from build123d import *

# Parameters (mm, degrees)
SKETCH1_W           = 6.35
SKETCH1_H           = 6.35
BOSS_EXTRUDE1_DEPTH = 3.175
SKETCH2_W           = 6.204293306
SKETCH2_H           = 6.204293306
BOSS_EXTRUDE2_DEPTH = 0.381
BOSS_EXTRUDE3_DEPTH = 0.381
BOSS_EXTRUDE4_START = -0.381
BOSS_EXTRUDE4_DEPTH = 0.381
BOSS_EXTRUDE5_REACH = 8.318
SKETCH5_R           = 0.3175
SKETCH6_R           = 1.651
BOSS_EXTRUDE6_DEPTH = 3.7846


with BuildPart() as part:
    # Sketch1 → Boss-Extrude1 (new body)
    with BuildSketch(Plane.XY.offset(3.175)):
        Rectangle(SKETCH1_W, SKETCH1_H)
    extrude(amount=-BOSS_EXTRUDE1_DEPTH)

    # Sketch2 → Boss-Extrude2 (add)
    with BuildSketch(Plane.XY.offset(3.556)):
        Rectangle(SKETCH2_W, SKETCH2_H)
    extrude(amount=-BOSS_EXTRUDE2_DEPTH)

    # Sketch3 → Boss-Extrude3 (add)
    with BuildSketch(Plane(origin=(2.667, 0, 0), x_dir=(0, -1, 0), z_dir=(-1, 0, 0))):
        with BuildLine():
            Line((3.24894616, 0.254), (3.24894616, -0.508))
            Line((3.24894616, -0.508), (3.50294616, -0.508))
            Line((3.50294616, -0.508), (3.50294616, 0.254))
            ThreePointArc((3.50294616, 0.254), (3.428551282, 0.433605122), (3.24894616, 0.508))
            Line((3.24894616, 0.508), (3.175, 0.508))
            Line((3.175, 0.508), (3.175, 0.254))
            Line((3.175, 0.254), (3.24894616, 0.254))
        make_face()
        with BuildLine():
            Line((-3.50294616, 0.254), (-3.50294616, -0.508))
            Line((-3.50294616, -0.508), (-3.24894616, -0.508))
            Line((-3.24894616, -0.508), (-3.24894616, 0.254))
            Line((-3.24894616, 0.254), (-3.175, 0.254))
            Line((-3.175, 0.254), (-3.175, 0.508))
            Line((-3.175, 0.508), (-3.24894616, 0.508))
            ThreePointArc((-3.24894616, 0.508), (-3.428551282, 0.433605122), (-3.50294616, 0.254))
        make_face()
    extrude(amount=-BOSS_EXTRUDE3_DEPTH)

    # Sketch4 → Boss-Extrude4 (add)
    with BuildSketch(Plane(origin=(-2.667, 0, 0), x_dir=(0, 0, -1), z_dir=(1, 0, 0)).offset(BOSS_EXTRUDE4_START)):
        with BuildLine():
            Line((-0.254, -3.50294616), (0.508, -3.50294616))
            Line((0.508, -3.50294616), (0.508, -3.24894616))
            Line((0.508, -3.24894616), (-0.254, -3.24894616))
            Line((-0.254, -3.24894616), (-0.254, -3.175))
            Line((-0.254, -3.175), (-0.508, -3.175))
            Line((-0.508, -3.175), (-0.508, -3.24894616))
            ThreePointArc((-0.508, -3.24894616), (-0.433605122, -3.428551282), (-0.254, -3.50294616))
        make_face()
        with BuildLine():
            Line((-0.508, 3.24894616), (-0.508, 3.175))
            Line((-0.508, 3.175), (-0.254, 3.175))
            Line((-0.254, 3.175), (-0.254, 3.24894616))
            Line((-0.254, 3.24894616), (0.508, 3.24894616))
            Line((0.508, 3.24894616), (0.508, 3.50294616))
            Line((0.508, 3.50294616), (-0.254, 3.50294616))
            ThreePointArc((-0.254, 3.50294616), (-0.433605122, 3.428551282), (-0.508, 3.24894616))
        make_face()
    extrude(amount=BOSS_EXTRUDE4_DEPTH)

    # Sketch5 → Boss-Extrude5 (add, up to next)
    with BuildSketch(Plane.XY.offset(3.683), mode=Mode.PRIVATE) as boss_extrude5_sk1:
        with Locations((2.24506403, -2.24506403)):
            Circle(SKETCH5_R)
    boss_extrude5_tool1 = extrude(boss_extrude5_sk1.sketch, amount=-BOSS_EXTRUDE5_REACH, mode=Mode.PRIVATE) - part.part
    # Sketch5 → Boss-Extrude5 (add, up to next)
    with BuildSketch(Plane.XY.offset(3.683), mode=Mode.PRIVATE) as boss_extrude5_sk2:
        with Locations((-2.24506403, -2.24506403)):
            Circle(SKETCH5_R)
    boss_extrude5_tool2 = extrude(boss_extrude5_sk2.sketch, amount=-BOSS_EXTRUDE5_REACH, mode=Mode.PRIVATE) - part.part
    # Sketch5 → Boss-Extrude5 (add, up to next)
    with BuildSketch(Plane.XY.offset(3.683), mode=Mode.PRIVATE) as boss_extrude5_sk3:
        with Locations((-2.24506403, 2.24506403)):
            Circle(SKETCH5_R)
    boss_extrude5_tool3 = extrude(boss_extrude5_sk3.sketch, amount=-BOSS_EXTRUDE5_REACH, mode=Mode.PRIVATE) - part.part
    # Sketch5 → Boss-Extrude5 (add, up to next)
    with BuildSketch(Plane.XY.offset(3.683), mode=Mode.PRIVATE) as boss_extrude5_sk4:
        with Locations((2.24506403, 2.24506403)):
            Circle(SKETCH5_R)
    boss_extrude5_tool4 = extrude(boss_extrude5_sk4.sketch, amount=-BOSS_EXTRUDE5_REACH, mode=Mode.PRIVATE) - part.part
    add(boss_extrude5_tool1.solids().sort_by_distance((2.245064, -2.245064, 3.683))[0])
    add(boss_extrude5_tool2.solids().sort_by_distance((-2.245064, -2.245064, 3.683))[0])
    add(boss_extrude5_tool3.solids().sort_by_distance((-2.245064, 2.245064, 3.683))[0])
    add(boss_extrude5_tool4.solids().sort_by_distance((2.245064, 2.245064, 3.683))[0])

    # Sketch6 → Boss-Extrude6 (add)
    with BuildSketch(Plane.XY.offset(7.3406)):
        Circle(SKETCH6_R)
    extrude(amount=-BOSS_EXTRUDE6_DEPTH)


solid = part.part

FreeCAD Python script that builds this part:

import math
import FreeCAD as App
import Part
import Sketcher
Q = App.Units.Quantity

doc = App.newDocument("Part")
body = doc.addObject("PartDesign::Body", "Body")

sketch1 = body.newObject("Sketcher::SketchObject", "Sketch")
sketch1.AttachmentSupport = (doc.getObject("XY_Plane"), [""])
sketch1.MapMode = "FlatFace"
sketch1.AttachmentOffset = App.Placement(App.Vector(0, 0, 0.125 * 25.4), App.Rotation())
sketch1.addGeometry([
    Part.LineSegment(App.Vector(-3, 3, 0), App.Vector(-3, -3, 0)),
    Part.LineSegment(App.Vector(-3, -3, 0), App.Vector(3, -3, 0)),
    Part.LineSegment(App.Vector(3, -3, 0), App.Vector(3, 3, 0)),
    Part.LineSegment(App.Vector(3, 3, 0), App.Vector(-3, 3, 0)),
], False)
sketch1.addConstraint([
    Sketcher.Constraint("Coincident", 0, 2, 1, 1),
    Sketcher.Constraint("Coincident", 1, 2, 2, 1),
    Sketcher.Constraint("Coincident", 2, 2, 3, 1),
    Sketcher.Constraint("Coincident", 3, 2, 0, 1),
    Sketcher.Constraint("Vertical", 0),
    Sketcher.Constraint("Horizontal", 1),
    Sketcher.Constraint("Vertical", 2),
    Sketcher.Constraint("Horizontal", 3),
    Sketcher.Constraint("Symmetric", 0, 2, 2, 2, -1, 1),
    Sketcher.Constraint("Equal", 3, 0),
    Sketcher.Constraint("DistanceX", 1, 1, 1, 2, Q("0.25 in")),
])
pad1 = body.newObject("PartDesign::Pad", "Pad")
pad1.Profile = sketch1
pad1.Length = Q("0.125 in")
pad1.Reversed = True

sketch2 = body.newObject("Sketcher::SketchObject", "Sketch001")
sketch2.AttachmentSupport = (doc.getObject("XY_Plane"), [""])
sketch2.MapMode = "FlatFace"
sketch2.AttachmentOffset = App.Placement(App.Vector(0, 0, 0.14 * 25.4), App.Rotation())
sketch2.addGeometry([
    Part.LineSegment(App.Vector(-3, 3, 0), App.Vector(-3, -3, 0)),
    Part.LineSegment(App.Vector(-3, -3, 0), App.Vector(3, -3, 0)),
    Part.LineSegment(App.Vector(3, -3, 0), App.Vector(3, 3, 0)),
    Part.LineSegment(App.Vector(3, 3, 0), App.Vector(-3, 3, 0)),
], False)
sketch2.addConstraint([
    Sketcher.Constraint("Coincident", 0, 2, 1, 1),
    Sketcher.Constraint("Coincident", 1, 2, 2, 1),
    Sketcher.Constraint("Coincident", 2, 2, 3, 1),
    Sketcher.Constraint("Coincident", 3, 2, 0, 1),
    Sketcher.Constraint("Vertical", 0),
    Sketcher.Constraint("Horizontal", 1),
    Sketcher.Constraint("Vertical", 2),
    Sketcher.Constraint("Horizontal", 3),
    Sketcher.Constraint("Symmetric", 0, 2, 2, 2, -1, 1),
    Sketcher.Constraint("Equal", 3, 0),
    Sketcher.Constraint("DistanceX", 1, 1, 1, 2, Q("6.204293 mm")),
])
pad2 = body.newObject("PartDesign::Pad", "Pad001")
pad2.Profile = sketch2
pad2.Length = Q("0.015 in")
pad2.Reversed = True

sketch3 = body.newObject("Sketcher::SketchObject", "Sketch002")
sketch3.AttachmentSupport = (doc.getObject("YZ_Plane"), [""])
sketch3.MapMode = "FlatFace"
sketch3.AttachmentOffset = App.Placement(App.Vector(0, 0, 0.105 * 25.4), App.Rotation())
sketch3.addGeometry([
    Part.LineSegment(App.Vector(-3.25, 0.25, 0), App.Vector(-3.25, -0.51, 0)),
    Part.LineSegment(App.Vector(-3.25, -0.51, 0), App.Vector(-3.5, -0.51, 0)),
    Part.LineSegment(App.Vector(-3.5, -0.51, 0), App.Vector(-3.5, 0.25, 0)),
    Part.ArcOfCircle(Part.Circle(App.Vector(-3.25, 0.25, 0), App.Vector(0, 0, 1), 0.25), math.radians(90), math.radians(180)),
    Part.LineSegment(App.Vector(-3.25, 0.51, 0), App.Vector(-3.17, 0.51, 0)),
    Part.LineSegment(App.Vector(-3.17, 0.51, 0), App.Vector(-3.17, 0.25, 0)),
    Part.LineSegment(App.Vector(-3.17, 0.25, 0), App.Vector(-3.25, 0.25, 0)),
    Part.LineSegment(App.Vector(3.5, 0.25, 0), App.Vector(3.5, -0.51, 0)),
    Part.LineSegment(App.Vector(3.5, -0.51, 0), App.Vector(3.25, -0.51, 0)),
    Part.LineSegment(App.Vector(3.25, -0.51, 0), App.Vector(3.25, 0.25, 0)),
    Part.LineSegment(App.Vector(3.25, 0.25, 0), App.Vector(3.17, 0.25, 0)),
    Part.LineSegment(App.Vector(3.17, 0.25, 0), App.Vector(3.17, 0.51, 0)),
    Part.LineSegment(App.Vector(3.17, 0.51, 0), App.Vector(3.25, 0.51, 0)),
    Part.ArcOfCircle(Part.Circle(App.Vector(3.25, 0.25, 0), App.Vector(0, 0, 1), 0.25), math.radians(0), math.radians(90)),
], False)
sketch3.addConstraint([
    Sketcher.Constraint("Coincident", 0, 2, 1, 1),
    Sketcher.Constraint("Coincident", 1, 2, 2, 1),
    Sketcher.Constraint("Tangent", 2, 2, 3, 2),
    Sketcher.Constraint("Tangent", 3, 1, 4, 1),
    Sketcher.Constraint("Coincident", 4, 2, 5, 1),
    Sketcher.Constraint("Coincident", 5, 2, 6, 1),
    Sketcher.Constraint("Coincident", 6, 2, 0, 1),
    Sketcher.Constraint("Coincident", 7, 2, 8, 1),
    Sketcher.Constraint("Coincident", 8, 2, 9, 1),
    Sketcher.Constraint("Coincident", 9, 2, 10, 1),
    Sketcher.Constraint("Coincident", 10, 2, 11, 1),
    Sketcher.Constraint("Coincident", 11, 2, 12, 1),
    Sketcher.Constraint("Tangent", 12, 2, 13, 2),
    Sketcher.Constraint("Tangent", 13, 1, 7, 1),
    Sketcher.Constraint("Vertical", 0),
    Sketcher.Constraint("Horizontal", 1),
    Sketcher.Constraint("Vertical", 2),
    Sketcher.Constraint("Horizontal", 4),
    Sketcher.Constraint("Vertical", 5),
    Sketcher.Constraint("Horizontal", 6),
    Sketcher.Constraint("Vertical", 7),
    Sketcher.Constraint("Horizontal", 8),
    Sketcher.Constraint("Vertical", 9),
    Sketcher.Constraint("Horizontal", 10),
    Sketcher.Constraint("Vertical", 11),
    Sketcher.Constraint("Horizontal", 12),
    Sketcher.Constraint("Coincident", 6, 2, 3, 3),
    Sketcher.Constraint("Coincident", 9, 2, 13, 3),
    Sketcher.Constraint("Equal", 3, 13),
    Sketcher.Constraint("Symmetric", 3, 1, 8, 2, -1, 1),
    Sketcher.Constraint("Symmetric", 5, 2, 10, 2, -2),
    Sketcher.Constraint("Horizontal", 1, 2, 7, 2),
    Sketcher.Constraint("Radius", 3, Q("0.01 in")),
    Sketcher.Constraint("DistanceY", 0, 2, 0, 1, Q("0.03 in")),
    Sketcher.Constraint("DistanceX", 5, 2, 10, 2, Q("0.25 in")),
    Sketcher.Constraint("DistanceX", 4, 1, 4, 2, Q("0.073946 mm")),
])
pad3 = body.newObject("PartDesign::Pad", "Pad002")
pad3.Profile = sketch3
pad3.Length = Q("0.015 in")

sketch4 = body.newObject("Sketcher::SketchObject", "Sketch003")
sketch4.AttachmentSupport = (doc.getObject("YZ_Plane"), [""])
sketch4.MapMode = "FlatFace"
sketch4.AttachmentOffset = App.Placement(App.Vector(0, 0, -0.12 * 25.4), App.Rotation())
sketch4.addGeometry([
    Part.LineSegment(App.Vector(-3.5, 0.25, 0), App.Vector(-3.5, -0.51, 0)),
    Part.LineSegment(App.Vector(-3.5, -0.51, 0), App.Vector(-3.25, -0.51, 0)),
    Part.LineSegment(App.Vector(-3.25, -0.51, 0), App.Vector(-3.25, 0.25, 0)),
    Part.LineSegment(App.Vector(-3.25, 0.25, 0), App.Vector(-3.17, 0.25, 0)),
    Part.LineSegment(App.Vector(-3.17, 0.25, 0), App.Vector(-3.17, 0.51, 0)),
    Part.LineSegment(App.Vector(-3.17, 0.51, 0), App.Vector(-3.25, 0.51, 0)),
    Part.ArcOfCircle(Part.Circle(App.Vector(-3.25, 0.25, 0), App.Vector(0, 0, 1), 0.25), math.radians(90), math.radians(180)),
    Part.LineSegment(App.Vector(3.25, 0.51, 0), App.Vector(3.17, 0.51, 0)),
    Part.LineSegment(App.Vector(3.17, 0.51, 0), App.Vector(3.17, 0.25, 0)),
    Part.LineSegment(App.Vector(3.17, 0.25, 0), App.Vector(3.25, 0.25, 0)),
    Part.LineSegment(App.Vector(3.25, 0.25, 0), App.Vector(3.25, -0.51, 0)),
    Part.LineSegment(App.Vector(3.25, -0.51, 0), App.Vector(3.5, -0.51, 0)),
    Part.LineSegment(App.Vector(3.5, -0.51, 0), App.Vector(3.5, 0.25, 0)),
    Part.ArcOfCircle(Part.Circle(App.Vector(3.25, 0.25, 0), App.Vector(0, 0, 1), 0.25), math.radians(0), math.radians(90)),
], False)
sketch4.addConstraint([
    Sketcher.Constraint("Coincident", 0, 2, 1, 1),
    Sketcher.Constraint("Coincident", 1, 2, 2, 1),
    Sketcher.Constraint("Coincident", 2, 2, 3, 1),
    Sketcher.Constraint("Coincident", 3, 2, 4, 1),
    Sketcher.Constraint("Coincident", 4, 2, 5, 1),
    Sketcher.Constraint("Tangent", 5, 2, 6, 1),
    Sketcher.Constraint("Tangent", 6, 2, 0, 1),
    Sketcher.Constraint("Coincident", 7, 2, 8, 1),
    Sketcher.Constraint("Coincident", 8, 2, 9, 1),
    Sketcher.Constraint("Coincident", 9, 2, 10, 1),
    Sketcher.Constraint("Coincident", 10, 2, 11, 1),
    Sketcher.Constraint("Coincident", 11, 2, 12, 1),
    Sketcher.Constraint("Tangent", 12, 2, 13, 1),
    Sketcher.Constraint("Tangent", 13, 2, 7, 1),
    Sketcher.Constraint("Vertical", 0),
    Sketcher.Constraint("Horizontal", 1),
    Sketcher.Constraint("Vertical", 2),
    Sketcher.Constraint("Horizontal", 3),
    Sketcher.Constraint("Vertical", 4),
    Sketcher.Constraint("Horizontal", 5),
    Sketcher.Constraint("Horizontal", 7),
    Sketcher.Constraint("Vertical", 8),
    Sketcher.Constraint("Horizontal", 9),
    Sketcher.Constraint("Vertical", 10),
    Sketcher.Constraint("Horizontal", 11),
    Sketcher.Constraint("Vertical", 12),
    Sketcher.Constraint("Coincident", 2, 2, 6, 3),
    Sketcher.Constraint("Coincident", 9, 2, 13, 3),
    Sketcher.Constraint("Equal", 6, 13),
    Sketcher.Constraint("Symmetric", 5, 2, 10, 2, -1, 1),
    Sketcher.Constraint("Symmetric", 4, 2, 7, 2, -2),
    Sketcher.Constraint("Horizontal", 1, 2, 10, 2),
    Sketcher.Constraint("Radius", 6, Q("0.01 in")),
    Sketcher.Constraint("DistanceY", 0, 2, 0, 1, Q("0.03 in")),
    Sketcher.Constraint("DistanceX", 4, 2, 7, 2, Q("0.25 in")),
    Sketcher.Constraint("DistanceX", 3, 1, 3, 2, Q("0.073946 mm")),
])
pad4 = body.newObject("PartDesign::Pad", "Pad003")
pad4.Profile = sketch4
pad4.Length = Q("0.015 in")

sketch5 = body.newObject("Sketcher::SketchObject", "Sketch004")
sketch5.AttachmentSupport = (doc.getObject("XY_Plane"), [""])
sketch5.MapMode = "FlatFace"
sketch5.AttachmentOffset = App.Placement(App.Vector(0, 0, 0.145 * 25.4), App.Rotation())
sketch5.addGeometry(Part.Circle(App.Vector(2.25, -2.25, 0), App.Vector(0, 0, 1), 0.32), False)
sketch5.addConstraint([
    Sketcher.Constraint("Diameter", 0, Q("0.025 in")),
    Sketcher.Constraint("DistanceX", -1, 1, 0, 3, Q("2.245064 mm")),
    Sketcher.Constraint("DistanceY", 0, 3, -1, 1, Q("2.245064 mm")),
])
pad5 = body.newObject("PartDesign::Pad", "Pad004")
pad5.Profile = sketch5
pad5.Type = "UpToFirst"
pad5.Reversed = True

sketch6 = body.newObject("Sketcher::SketchObject", "Sketch005")
sketch6.AttachmentSupport = (doc.getObject("XY_Plane"), [""])
sketch6.MapMode = "FlatFace"
sketch6.AttachmentOffset = App.Placement(App.Vector(0, 0, 0.145 * 25.4), App.Rotation())
sketch6.addGeometry(Part.Circle(App.Vector(-2.25, -2.25, 0), App.Vector(0, 0, 1), 0.32), False)
sketch6.addConstraint([
    Sketcher.Constraint("Diameter", 0, Q("0.025 in")),
    Sketcher.Constraint("DistanceX", 0, 3, -1, 1, Q("2.245064 mm")),
    Sketcher.Constraint("DistanceY", 0, 3, -1, 1, Q("2.245064 mm")),
])
pad6 = body.newObject("PartDesign::Pad", "Pad005")
pad6.Profile = sketch6
pad6.Type = "UpToFirst"
pad6.Reversed = True

sketch7 = body.newObject("Sketcher::SketchObject", "Sketch006")
sketch7.AttachmentSupport = (doc.getObject("XY_Plane"), [""])
sketch7.MapMode = "FlatFace"
sketch7.AttachmentOffset = App.Placement(App.Vector(0, 0, 0.145 * 25.4), App.Rotation())
sketch7.addGeometry(Part.Circle(App.Vector(-2.25, 2.25, 0), App.Vector(0, 0, 1), 0.32), False)
sketch7.addConstraint([
    Sketcher.Constraint("Diameter", 0, Q("0.025 in")),
    Sketcher.Constraint("DistanceX", 0, 3, -1, 1, Q("2.245064 mm")),
    Sketcher.Constraint("DistanceY", -1, 1, 0, 3, Q("2.245064 mm")),
])
pad7 = body.newObject("PartDesign::Pad", "Pad006")
pad7.Profile = sketch7
pad7.Type = "UpToFirst"
pad7.Reversed = True

sketch8 = body.newObject("Sketcher::SketchObject", "Sketch007")
sketch8.AttachmentSupport = (doc.getObject("XY_Plane"), [""])
sketch8.MapMode = "FlatFace"
sketch8.AttachmentOffset = App.Placement(App.Vector(0, 0, 0.145 * 25.4), App.Rotation())
sketch8.addGeometry(Part.Circle(App.Vector(2.25, 2.25, 0), App.Vector(0, 0, 1), 0.32), False)
sketch8.addConstraint([
    Sketcher.Constraint("Diameter", 0, Q("0.025 in")),
    Sketcher.Constraint("DistanceX", -1, 1, 0, 3, Q("2.245064 mm")),
    Sketcher.Constraint("DistanceY", -1, 1, 0, 3, Q("2.245064 mm")),
])
pad8 = body.newObject("PartDesign::Pad", "Pad007")
pad8.Profile = sketch8
pad8.Type = "UpToFirst"
pad8.Reversed = True

sketch9 = body.newObject("Sketcher::SketchObject", "Sketch008")
sketch9.AttachmentSupport = (doc.getObject("XY_Plane"), [""])
sketch9.MapMode = "FlatFace"
sketch9.AttachmentOffset = App.Placement(App.Vector(0, 0, 0.289 * 25.4), App.Rotation())
sketch9.addGeometry(Part.Circle(App.Vector(0, 0, 0), App.Vector(0, 0, 1), 1.7), False)
sketch9.addConstraint([
    Sketcher.Constraint("Coincident", 0, 3, -1, 1),
    Sketcher.Constraint("Diameter", 0, Q("0.13 in")),
])
pad9 = body.newObject("PartDesign::Pad", "Pad008")
pad9.Profile = sketch9
pad9.Length = Q("0.149 in")
pad9.Reversed = True

doc.recompute()
